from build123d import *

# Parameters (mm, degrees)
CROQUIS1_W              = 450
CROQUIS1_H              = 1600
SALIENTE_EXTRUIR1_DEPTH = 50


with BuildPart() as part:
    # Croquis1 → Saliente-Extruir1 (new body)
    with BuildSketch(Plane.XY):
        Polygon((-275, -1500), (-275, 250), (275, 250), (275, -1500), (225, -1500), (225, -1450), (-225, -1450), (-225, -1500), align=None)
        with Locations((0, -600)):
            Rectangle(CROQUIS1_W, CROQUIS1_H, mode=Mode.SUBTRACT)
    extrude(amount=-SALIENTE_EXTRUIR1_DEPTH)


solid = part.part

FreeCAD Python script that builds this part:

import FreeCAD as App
import Part
import Sketcher
from FreeCAD import Vector


def add_polygon(sketch, points):
    """Adds a closed chain of lines whose ends are joined by coincident constraints."""
    first, n = sketch.GeometryCount, len(points)
    for a, b in zip(points, points[1:] + points[:1]):
        sketch.addGeometry(Part.LineSegment(App.Vector(*a, 0), App.Vector(*b, 0)), False)
    for i in range(n):
        sketch.addConstraint(Sketcher.Constraint("Coincident", first + i, 2, first + (i + 1) % n, 1))

doc = App.newDocument("Part")
body = doc.addObject("PartDesign::Body", "Body")

# Sketch on XY plane
sketch1 = doc.addObject("Sketcher::SketchObject", "Sketch")
body.addObject(sketch1)
sketch1.AttachmentSupport = (doc.XY_Plane, [""])
sketch1.MapMode = "FlatFace"
add_polygon(sketch1, [(-275, 250), (-275, -1500), (-225, -1500), (-225, -1450), (225, -1450), (225, -1500), (275, -1500), (275, 250)])  # lines 0-7
add_polygon(sketch1, [(-225, -1400), (-225, 200), (225, 200), (225, -1400)])  # lines 8-11
sketch1.addConstraint([
    Sketcher.Constraint("Vertical", 0),
    Sketcher.Constraint("Horizontal", 1),
    Sketcher.Constraint("Vertical", 2),
    Sketcher.Constraint("Horizontal", 3),
    Sketcher.Constraint("Vertical", 4),
    Sketcher.Constraint("Horizontal", 5),
    Sketcher.Constraint("Vertical", 6),
    Sketcher.Constraint("Horizontal", 7),
    Sketcher.Constraint("Vertical", 8),
    Sketcher.Constraint("Horizontal", 9),
    Sketcher.Constraint("Vertical", 10),
    Sketcher.Constraint("Horizontal", 11),
    Sketcher.Constraint("Symmetric", 1, 2, 4, 2, -2),
    Sketcher.Constraint("Vertical", 2, 2, 8, 2),
    Sketcher.Constraint("Vertical", 4, 2, 9, 2),
    Sketcher.Constraint("Equal", 1, 5),
    Sketcher.Constraint("Equal", 5, 2),
    Sketcher.Constraint("DistanceX", 1, 1, 1, 2, 50.0),
    Sketcher.Constraint("DistanceX", 3, 1, 3, 2, 450.0),
    Sketcher.Constraint("DistanceY", 0, 2, 0, 1, 1750.0),
    Sketcher.Constraint("DistanceY", 8, 1, 8, 2, 1600.0),
    Sketcher.Constraint("DistanceY", 0, 2, -1, 1, 1500.0),
    Sketcher.Constraint("DistanceY", -1, 1, 8, 2, 200.0),
])
pad1 = doc.addObject("PartDesign::Pad", "Pad")
body.addObject(pad1)
pad1.Profile = sketch1
pad1.Length = 50
pad1.Reversed = True

doc.recompute()
